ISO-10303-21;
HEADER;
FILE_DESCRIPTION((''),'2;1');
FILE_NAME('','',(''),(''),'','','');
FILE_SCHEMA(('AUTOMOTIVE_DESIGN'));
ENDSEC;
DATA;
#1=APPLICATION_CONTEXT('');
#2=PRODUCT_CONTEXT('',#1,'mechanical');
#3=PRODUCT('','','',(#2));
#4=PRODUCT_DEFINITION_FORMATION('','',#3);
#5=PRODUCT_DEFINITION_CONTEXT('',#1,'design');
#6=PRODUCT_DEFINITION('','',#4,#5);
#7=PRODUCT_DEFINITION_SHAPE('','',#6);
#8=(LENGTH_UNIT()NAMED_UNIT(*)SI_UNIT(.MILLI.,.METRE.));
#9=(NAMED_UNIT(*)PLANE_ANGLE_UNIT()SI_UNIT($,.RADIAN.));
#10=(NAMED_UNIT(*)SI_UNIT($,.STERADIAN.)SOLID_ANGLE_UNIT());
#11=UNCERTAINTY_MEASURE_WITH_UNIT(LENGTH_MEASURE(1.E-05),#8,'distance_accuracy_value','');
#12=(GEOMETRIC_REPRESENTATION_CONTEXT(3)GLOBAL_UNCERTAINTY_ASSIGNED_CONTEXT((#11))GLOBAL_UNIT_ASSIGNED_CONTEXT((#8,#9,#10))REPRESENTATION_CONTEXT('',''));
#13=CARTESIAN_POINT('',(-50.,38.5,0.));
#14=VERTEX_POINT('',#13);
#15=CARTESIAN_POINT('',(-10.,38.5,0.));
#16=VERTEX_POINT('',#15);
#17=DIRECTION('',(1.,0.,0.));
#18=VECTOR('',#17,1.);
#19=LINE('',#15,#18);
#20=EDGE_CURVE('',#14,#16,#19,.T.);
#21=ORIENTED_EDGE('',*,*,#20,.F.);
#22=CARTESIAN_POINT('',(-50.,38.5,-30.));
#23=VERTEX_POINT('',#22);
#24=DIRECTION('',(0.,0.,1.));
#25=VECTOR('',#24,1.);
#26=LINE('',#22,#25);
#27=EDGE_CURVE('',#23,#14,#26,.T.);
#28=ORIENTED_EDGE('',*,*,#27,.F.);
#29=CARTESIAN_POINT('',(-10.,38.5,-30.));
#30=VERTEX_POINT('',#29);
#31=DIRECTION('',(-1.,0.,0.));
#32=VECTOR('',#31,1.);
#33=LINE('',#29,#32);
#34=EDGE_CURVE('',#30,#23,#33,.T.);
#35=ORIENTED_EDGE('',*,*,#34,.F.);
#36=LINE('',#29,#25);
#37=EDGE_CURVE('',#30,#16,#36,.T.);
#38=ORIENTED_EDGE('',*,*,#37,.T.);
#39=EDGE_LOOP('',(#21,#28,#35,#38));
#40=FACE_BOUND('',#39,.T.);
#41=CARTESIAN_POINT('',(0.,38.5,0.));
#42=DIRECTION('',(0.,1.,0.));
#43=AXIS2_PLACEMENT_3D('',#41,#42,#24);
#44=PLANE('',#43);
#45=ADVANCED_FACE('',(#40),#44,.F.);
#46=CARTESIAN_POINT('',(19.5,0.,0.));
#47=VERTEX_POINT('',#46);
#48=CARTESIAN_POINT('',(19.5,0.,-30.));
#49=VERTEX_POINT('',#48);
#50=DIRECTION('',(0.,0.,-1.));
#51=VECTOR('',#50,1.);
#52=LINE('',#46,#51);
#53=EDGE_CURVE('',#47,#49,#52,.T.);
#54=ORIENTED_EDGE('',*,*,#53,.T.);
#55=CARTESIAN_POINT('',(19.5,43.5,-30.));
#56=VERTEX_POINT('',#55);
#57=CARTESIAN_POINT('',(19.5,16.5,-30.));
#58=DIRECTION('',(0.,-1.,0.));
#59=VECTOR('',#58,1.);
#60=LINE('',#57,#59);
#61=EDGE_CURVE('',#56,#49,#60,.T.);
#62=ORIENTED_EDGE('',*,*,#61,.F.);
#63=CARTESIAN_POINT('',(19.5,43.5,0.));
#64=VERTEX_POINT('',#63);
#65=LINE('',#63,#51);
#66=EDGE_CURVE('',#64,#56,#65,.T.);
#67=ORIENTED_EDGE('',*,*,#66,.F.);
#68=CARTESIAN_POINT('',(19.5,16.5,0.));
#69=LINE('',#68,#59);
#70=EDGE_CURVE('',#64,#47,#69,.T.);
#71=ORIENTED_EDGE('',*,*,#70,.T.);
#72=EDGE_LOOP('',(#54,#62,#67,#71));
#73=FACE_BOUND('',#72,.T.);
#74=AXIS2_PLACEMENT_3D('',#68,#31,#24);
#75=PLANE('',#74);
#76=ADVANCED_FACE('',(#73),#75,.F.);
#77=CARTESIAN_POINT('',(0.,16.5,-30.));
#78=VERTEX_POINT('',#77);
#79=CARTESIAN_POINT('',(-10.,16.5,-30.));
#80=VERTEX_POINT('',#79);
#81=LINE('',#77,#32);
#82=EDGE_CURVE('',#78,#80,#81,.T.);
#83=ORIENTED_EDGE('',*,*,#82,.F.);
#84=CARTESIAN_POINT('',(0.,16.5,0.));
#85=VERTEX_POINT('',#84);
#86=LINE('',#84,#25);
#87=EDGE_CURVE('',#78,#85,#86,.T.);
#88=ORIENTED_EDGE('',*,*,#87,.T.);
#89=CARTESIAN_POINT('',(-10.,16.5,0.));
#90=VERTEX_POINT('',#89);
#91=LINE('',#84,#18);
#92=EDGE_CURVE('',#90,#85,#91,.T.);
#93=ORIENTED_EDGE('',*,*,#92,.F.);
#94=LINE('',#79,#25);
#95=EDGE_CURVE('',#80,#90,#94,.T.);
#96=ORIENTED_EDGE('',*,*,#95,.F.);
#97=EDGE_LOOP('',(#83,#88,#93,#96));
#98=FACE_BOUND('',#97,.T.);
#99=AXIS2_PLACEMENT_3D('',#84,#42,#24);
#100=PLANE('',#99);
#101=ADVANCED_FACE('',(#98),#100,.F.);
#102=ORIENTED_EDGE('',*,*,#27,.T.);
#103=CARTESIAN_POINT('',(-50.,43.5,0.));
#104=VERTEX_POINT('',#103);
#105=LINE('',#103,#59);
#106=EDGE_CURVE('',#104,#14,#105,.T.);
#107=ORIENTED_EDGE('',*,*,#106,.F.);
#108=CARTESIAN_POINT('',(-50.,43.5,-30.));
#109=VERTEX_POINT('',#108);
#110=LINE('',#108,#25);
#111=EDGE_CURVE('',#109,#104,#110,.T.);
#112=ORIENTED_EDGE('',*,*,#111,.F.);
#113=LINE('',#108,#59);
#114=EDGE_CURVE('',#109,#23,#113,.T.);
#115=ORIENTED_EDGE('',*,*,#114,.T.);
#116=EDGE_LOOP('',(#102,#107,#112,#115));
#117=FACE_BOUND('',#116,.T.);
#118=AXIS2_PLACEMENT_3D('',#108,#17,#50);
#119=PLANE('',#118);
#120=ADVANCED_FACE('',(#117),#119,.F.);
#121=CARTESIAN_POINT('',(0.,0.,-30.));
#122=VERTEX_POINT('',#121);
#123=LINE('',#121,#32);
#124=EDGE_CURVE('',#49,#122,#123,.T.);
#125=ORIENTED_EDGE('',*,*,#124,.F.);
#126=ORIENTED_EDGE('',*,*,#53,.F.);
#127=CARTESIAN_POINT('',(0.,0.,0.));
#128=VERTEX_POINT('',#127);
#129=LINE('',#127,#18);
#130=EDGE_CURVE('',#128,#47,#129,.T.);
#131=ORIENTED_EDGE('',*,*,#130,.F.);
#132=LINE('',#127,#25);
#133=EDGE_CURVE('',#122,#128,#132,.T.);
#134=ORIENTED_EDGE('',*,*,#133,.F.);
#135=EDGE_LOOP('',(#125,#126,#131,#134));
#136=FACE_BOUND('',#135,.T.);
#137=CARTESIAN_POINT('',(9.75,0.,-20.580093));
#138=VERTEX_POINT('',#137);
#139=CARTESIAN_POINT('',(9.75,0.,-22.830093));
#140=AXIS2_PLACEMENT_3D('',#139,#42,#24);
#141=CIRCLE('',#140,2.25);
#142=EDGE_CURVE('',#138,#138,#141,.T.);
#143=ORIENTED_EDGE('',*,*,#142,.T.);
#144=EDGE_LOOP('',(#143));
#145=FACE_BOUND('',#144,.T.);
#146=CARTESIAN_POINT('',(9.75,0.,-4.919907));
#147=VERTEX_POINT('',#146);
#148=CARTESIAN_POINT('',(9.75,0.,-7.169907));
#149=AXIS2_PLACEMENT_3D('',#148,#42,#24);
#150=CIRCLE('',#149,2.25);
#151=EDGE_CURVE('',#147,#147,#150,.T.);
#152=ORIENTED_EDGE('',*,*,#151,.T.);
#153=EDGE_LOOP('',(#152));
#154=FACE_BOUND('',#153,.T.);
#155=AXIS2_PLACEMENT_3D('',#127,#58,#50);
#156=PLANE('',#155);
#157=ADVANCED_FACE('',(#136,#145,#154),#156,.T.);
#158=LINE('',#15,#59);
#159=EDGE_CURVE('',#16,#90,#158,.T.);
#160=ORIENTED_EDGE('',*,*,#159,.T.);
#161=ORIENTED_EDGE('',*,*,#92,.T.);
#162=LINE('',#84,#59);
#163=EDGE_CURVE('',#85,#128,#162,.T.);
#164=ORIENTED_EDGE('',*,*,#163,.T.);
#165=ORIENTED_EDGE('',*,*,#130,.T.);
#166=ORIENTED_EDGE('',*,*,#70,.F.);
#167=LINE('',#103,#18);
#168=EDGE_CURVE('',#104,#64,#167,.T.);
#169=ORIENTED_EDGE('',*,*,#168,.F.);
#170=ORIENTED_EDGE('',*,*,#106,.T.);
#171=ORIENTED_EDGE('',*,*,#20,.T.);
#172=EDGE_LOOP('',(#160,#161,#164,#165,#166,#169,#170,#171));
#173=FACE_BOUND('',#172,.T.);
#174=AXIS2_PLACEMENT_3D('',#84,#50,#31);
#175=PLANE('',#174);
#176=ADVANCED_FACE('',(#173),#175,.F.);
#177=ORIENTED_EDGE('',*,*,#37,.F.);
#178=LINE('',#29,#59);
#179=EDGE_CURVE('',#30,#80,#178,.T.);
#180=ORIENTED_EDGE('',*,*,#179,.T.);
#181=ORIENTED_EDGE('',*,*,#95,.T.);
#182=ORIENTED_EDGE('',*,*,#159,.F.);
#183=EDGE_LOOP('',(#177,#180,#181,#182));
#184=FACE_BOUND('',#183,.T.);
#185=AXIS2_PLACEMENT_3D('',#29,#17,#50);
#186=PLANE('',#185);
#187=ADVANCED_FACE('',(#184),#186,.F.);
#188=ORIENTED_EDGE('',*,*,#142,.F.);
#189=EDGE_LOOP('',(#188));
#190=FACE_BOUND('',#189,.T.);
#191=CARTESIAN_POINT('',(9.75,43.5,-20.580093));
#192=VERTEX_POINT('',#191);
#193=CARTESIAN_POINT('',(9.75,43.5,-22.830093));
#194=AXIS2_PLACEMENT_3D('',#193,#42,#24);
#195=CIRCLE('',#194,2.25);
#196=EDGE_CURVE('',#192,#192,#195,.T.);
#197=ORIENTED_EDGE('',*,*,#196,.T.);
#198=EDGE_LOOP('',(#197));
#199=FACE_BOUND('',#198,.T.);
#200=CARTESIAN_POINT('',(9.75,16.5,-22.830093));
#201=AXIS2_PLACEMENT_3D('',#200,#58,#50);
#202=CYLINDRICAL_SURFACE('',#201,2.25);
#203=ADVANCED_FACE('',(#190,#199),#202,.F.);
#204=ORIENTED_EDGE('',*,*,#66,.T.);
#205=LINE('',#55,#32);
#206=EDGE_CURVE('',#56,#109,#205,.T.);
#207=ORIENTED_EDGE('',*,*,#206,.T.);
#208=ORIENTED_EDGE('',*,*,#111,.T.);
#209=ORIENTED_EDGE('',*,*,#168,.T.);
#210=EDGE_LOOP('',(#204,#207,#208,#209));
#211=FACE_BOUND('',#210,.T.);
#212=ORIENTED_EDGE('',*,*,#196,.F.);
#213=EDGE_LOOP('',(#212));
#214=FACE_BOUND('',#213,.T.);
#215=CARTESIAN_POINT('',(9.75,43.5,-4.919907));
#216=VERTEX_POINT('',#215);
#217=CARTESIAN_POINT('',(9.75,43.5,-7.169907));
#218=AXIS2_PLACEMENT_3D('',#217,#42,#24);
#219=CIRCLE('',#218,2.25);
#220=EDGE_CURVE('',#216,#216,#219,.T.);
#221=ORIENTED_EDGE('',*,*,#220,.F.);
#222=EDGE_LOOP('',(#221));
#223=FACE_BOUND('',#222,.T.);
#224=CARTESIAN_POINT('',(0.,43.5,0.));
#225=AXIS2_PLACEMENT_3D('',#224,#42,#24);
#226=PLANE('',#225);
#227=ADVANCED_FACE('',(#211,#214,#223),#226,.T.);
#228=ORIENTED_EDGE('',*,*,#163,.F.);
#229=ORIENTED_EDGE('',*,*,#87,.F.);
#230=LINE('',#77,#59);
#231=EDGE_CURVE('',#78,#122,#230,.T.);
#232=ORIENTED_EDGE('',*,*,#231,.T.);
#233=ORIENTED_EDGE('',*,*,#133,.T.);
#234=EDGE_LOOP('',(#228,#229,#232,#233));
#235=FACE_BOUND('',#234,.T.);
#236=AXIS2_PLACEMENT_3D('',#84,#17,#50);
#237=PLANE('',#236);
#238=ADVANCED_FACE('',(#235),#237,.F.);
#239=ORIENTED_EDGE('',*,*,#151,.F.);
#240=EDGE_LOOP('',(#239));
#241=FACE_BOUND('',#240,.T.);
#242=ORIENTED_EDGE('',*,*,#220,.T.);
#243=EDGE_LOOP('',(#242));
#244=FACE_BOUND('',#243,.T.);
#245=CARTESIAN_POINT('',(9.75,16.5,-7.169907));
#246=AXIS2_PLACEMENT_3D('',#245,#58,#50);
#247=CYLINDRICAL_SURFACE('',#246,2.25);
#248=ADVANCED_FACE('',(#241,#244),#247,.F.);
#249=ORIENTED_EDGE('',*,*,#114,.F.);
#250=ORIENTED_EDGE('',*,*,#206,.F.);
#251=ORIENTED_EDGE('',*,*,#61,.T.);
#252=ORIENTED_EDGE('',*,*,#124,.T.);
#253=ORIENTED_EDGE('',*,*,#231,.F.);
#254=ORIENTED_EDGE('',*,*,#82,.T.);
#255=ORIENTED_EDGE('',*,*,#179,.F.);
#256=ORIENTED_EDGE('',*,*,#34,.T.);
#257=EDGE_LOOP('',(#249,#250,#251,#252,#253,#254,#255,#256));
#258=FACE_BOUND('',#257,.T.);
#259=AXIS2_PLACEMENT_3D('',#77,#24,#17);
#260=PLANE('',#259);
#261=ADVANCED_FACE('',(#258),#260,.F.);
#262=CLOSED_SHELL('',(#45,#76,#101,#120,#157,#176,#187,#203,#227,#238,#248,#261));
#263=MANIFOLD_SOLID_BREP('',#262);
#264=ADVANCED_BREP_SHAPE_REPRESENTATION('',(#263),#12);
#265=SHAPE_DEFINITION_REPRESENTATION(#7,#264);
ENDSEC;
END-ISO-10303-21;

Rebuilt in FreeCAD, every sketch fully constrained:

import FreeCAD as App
import Part
import Sketcher
from FreeCAD import Vector
Q = App.Units.Quantity


def add_polygon(sketch, points):
    """Adds a closed chain of lines whose ends are joined by coincident constraints."""
    first, n = sketch.GeometryCount, len(points)
    for a, b in zip(points, points[1:] + points[:1]):
        sketch.addGeometry(Part.LineSegment(App.Vector(*a, 0), App.Vector(*b, 0)), False)
    for i in range(n):
        sketch.addConstraint(Sketcher.Constraint("Coincident", first + i, 2, first + (i + 1) % n, 1))

doc = App.newDocument("Part")
body = doc.addObject("PartDesign::Body", "Body")

# Sketch on XZ plane
sketch1 = doc.addObject("Sketcher::SketchObject", "Sketch")
body.addObject(sketch1)
sketch1.AttachmentSupport = (doc.XZ_Plane, [""])
sketch1.MapMode = "FlatFace"
add_polygon(sketch1, [(0, -30), (0, 0), (19.5, 0), (19.5, -30)])  # lines 0-3
sketch1.addGeometry(Part.Circle(Vector(9.8, -7.2, 0), Vector(0, 0, 1), 2.2), False)  # 4
sketch1.addGeometry(Part.Circle(Vector(9.8, -22.8, 0), Vector(0, 0, 1), 2.2), False)  # 5
sketch1.addConstraint([
    Sketcher.Constraint("Vertical", 0),
    Sketcher.Constraint("Horizontal", 1),
    Sketcher.Constraint("Vertical", 2),
    Sketcher.Constraint("Horizontal", 3),
    Sketcher.Constraint("Coincident", 0, 2, -1, 1),
    Sketcher.Constraint("Equal", 4, 5),
    Sketcher.Constraint("Vertical", 4, 3, 5, 3),
    Sketcher.Constraint("Diameter", 4, Q("4.5 mm")),
    Sketcher.Constraint("DistanceY", 0, 1, 0, 2, Q("30 mm")),
    Sketcher.Constraint("DistanceX", 1, 1, 1, 2, Q("19.5 mm")),
    Sketcher.Constraint("DistanceX", -1, 1, 4, 3, Q("9.75 mm")),
    Sketcher.Constraint("DistanceY", 4, 3, -1, 1, Q("7.169907 mm")),
    Sketcher.Constraint("DistanceY", 5, 3, -1, 1, Q("22.830093 mm")),
])
pad1 = doc.addObject("PartDesign::Pad", "Pad")
body.addObject(pad1)
pad1.Profile = sketch1
pad1.Length = 16.5
pad1.Reversed = True

# Sketch on XZ plane
sketch2 = doc.addObject("Sketcher::SketchObject", "Sketch001")
body.addObject(sketch2)
sketch2.AttachmentSupport = (doc.XZ_Plane, [""])
sketch2.MapMode = "FlatFace"
sketch2.AttachmentOffset = App.Placement(Vector(0, 0, -16.5), App.Rotation())
add_polygon(sketch2, [(-10, -30), (-10, 0), (19.5, 0), (19.5, -30)])  # lines 0-3
sketch2.addGeometry(Part.Circle(Vector(9.8, -7.2, 0), Vector(0, 0, 1), 2.2), False)  # 4
sketch2.addGeometry(Part.Circle(Vector(9.8, -22.8, 0), Vector(0, 0, 1), 2.2), False)  # 5
sketch2.addConstraint([
    Sketcher.Constraint("Vertical", 0),
    Sketcher.Constraint("Horizontal", 1),
    Sketcher.Constraint("Vertical", 2),
    Sketcher.Constraint("Horizontal", 3),
    Sketcher.Constraint("Equal", 4, 5),
    Sketcher.Constraint("PointOnObject", 0, 2, -1),
    Sketcher.Constraint("Vertical", 4, 3, 5, 3),
    Sketcher.Constraint("Diameter", 4, Q("4.5 mm")),
    Sketcher.Constraint("DistanceY", 0, 1, 0, 2, Q("30 mm")),
    Sketcher.Constraint("DistanceX", 1, 1, 1, 2, Q("29.5 mm")),
    Sketcher.Constraint("DistanceX", 0, 2, -1, 1, Q("10 mm")),
    Sketcher.Constraint("DistanceX", -1, 1, 4, 3, Q("9.75 mm")),
    Sketcher.Constraint("DistanceY", 4, 3, -1, 1, Q("7.169907 mm")),
    Sketcher.Constraint("DistanceY", 5, 3, -1, 1, Q("22.830093 mm")),
])
pad2 = doc.addObject("PartDesign::Pad", "Pad001")
body.addObject(pad2)
pad2.Profile = sketch2
pad2.Length = 22
pad2.Reversed = True

# Sketch on XZ plane
sketch3 = doc.addObject("Sketcher::SketchObject", "Sketch002")
body.addObject(sketch3)
sketch3.AttachmentSupport = (doc.XZ_Plane, [""])
sketch3.MapMode = "FlatFace"
sketch3.AttachmentOffset = App.Placement(Vector(0, 0, -38.5), App.Rotation())
add_polygon(sketch3, [(-50, -30), (-50, 0), (19.5, 0), (19.5, -30)])  # lines 0-3
sketch3.addGeometry(Part.Circle(Vector(9.8, -7.2, 0), Vector(0, 0, 1), 2.2), False)  # 4
sketch3.addGeometry(Part.Circle(Vector(9.8, -22.8, 0), Vector(0, 0, 1), 2.2), False)  # 5
sketch3.addConstraint([
    Sketcher.Constraint("Vertical", 0),
    Sketcher.Constraint("Horizontal", 1),
    Sketcher.Constraint("Vertical", 2),
    Sketcher.Constraint("Horizontal", 3),
    Sketcher.Constraint("Equal", 4, 5),
    Sketcher.Constraint("PointOnObject", 0, 2, -1),
    Sketcher.Constraint("Vertical", 4, 3, 5, 3),
    Sketcher.Constraint("Diameter", 4, Q("4.5 mm")),
    Sketcher.Constraint("DistanceY", 0, 1, 0, 2, Q("30 mm")),
    Sketcher.Constraint("DistanceX", 1, 1, 1, 2, Q("69.5 mm")),
    Sketcher.Constraint("DistanceX", 0, 2, -1, 1, Q("50 mm")),
    Sketcher.Constraint("DistanceX", -1, 1, 4, 3, Q("9.75 mm")),
    Sketcher.Constraint("DistanceY", 4, 3, -1, 1, Q("7.169907 mm")),
    Sketcher.Constraint("DistanceY", 5, 3, -1, 1, Q("22.830093 mm")),
])
pad3 = doc.addObject("PartDesign::Pad", "Pad002")
body.addObject(pad3)
pad3.Profile = sketch3
pad3.Length = 5
pad3.Reversed = True

doc.recompute()
